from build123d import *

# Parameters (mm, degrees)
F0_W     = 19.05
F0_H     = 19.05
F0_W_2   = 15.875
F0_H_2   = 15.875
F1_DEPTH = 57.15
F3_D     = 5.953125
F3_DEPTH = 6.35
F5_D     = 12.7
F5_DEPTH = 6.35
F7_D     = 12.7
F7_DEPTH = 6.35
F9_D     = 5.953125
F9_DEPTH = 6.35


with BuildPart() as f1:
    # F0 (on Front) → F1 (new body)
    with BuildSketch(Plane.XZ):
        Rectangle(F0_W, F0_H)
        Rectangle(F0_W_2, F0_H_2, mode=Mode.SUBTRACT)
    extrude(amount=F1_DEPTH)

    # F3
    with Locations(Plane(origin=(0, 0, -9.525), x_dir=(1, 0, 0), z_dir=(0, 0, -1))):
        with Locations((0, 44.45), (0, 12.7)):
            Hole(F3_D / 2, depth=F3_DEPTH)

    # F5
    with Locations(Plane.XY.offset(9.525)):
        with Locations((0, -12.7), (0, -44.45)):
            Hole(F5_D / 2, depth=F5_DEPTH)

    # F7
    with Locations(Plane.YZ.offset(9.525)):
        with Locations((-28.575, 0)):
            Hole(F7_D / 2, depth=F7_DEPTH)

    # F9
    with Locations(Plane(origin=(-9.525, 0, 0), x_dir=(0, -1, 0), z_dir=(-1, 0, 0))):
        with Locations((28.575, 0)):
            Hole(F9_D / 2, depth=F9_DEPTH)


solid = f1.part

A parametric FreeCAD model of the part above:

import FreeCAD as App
import Part
import Sketcher
Q = App.Units.Quantity


def add_polygon(sketch, points):
    """Adds a closed chain of lines whose ends are joined by coincident constraints."""
    first, n = sketch.GeometryCount, len(points)
    for a, b in zip(points, points[1:] + points[:1]):
        sketch.addGeometry(Part.LineSegment(App.Vector(*a, 0), App.Vector(*b, 0)), False)
    for i in range(n):
        sketch.addConstraint(Sketcher.Constraint("Coincident", first + i, 2, first + (i + 1) % n, 1))

doc = App.newDocument("Part")
params = doc.addObject("Spreadsheet::Sheet", "Params")
for row, (alias, value) in enumerate([
    ("sketch1_width", "0.75 in"),
    ("sketch1_width2", "0.625 in"),
    ("pad1_length", "2.25 in"),
    ("sketch2_diameter", "0.234375 in"),
    ("hole_diameter", "0.234375 in"),
    ("hole_depth", "0.25 in"),
    ("sketch3_diameter", "0.5 in"),
    ("hole2_diameter", "0.5 in"),
    ("hole2_depth", "0.25 in"),
    ("sketch4_diameter", "0.5 in"),
    ("hole3_diameter", "0.5 in"),
    ("hole3_depth", "0.25 in"),
    ("sketch5_diameter", "0.234375 in"),
    ("hole4_diameter", "0.234375 in"),
    ("hole4_depth", "0.25 in"),
], start=1):
    params.set(f"A{row}", alias)
    params.set(f"B{row}", "=" + value)
    params.setAlias(f"B{row}", alias)

body = doc.addObject("PartDesign::Body", "Body")

sketch1 = body.newObject("Sketcher::SketchObject", "Sketch")
sketch1.AttachmentSupport = (doc.getObject("XZ_Plane"), [""])
sketch1.MapMode = "FlatFace"
add_polygon(sketch1, [(-10, 10), (-10, -10), (10, -10), (10, 10)])
add_polygon(sketch1, [(8, -8), (-8, -8), (-8, 8), (8, 8)])
sketch1.addConstraint(Sketcher.Constraint("Vertical", 0))
sketch1.addConstraint(Sketcher.Constraint("Horizontal", 1))
sketch1.addConstraint(Sketcher.Constraint("Vertical", 2))
sketch1.addConstraint(Sketcher.Constraint("Horizontal", 3))
sketch1.addConstraint(Sketcher.Constraint("Horizontal", 4))
sketch1.addConstraint(Sketcher.Constraint("Vertical", 5))
sketch1.addConstraint(Sketcher.Constraint("Horizontal", 6))
sketch1.addConstraint(Sketcher.Constraint("Vertical", 7))
sketch1.addConstraint(Sketcher.Constraint("Symmetric", 0, 2, 2, 2, -1, 1))
sketch1.addConstraint(Sketcher.Constraint("Symmetric", 4, 2, 6, 2, -1, 1))
sketch1.addConstraint(Sketcher.Constraint("Equal", 3, 0))
sketch1.addConstraint(Sketcher.Constraint("Equal", 6, 5))
sketch1.addConstraint(Sketcher.Constraint("DistanceX", 1, 1, 1, 2, Q("0.75 in")))
sketch1.addConstraint(Sketcher.Constraint("DistanceX", 4, 2, 4, 1, Q("0.625 in")))
sketch1.setExpression("Constraints[20]", "Params.sketch1_width")
sketch1.setExpression("Constraints[21]", "Params.sketch1_width2")
pad1 = body.newObject("PartDesign::Pad", "Pad")
pad1.Profile = sketch1
pad1.setExpression("Length", "Params.pad1_length")

sketch2 = body.newObject("Sketcher::SketchObject", "Sketch001")
sketch2.AttachmentSupport = (doc.getObject("XY_Plane"), [""])
sketch2.MapMode = "FlatFace"
sketch2.AttachmentOffset = App.Placement(App.Vector(0, 0, -0.375 * 25.4), App.Rotation())
sketch2.addGeometry(Part.Circle(App.Vector(0, -44.5, 0), App.Vector(0, 0, 1), 3), False)
sketch2.addGeometry(Part.Circle(App.Vector(0, -12.7, 0), App.Vector(0, 0, 1), 3), False)
sketch2.addConstraint(Sketcher.Constraint("Equal", 0, 1))
sketch2.addConstraint(Sketcher.Constraint("PointOnObject", 0, 3, -2))
sketch2.addConstraint(Sketcher.Constraint("PointOnObject", 1, 3, -2))
sketch2.addConstraint(Sketcher.Constraint("Diameter", 0, Q("0.234375 in")))
sketch2.addConstraint(Sketcher.Constraint("DistanceY", 1, 3, -1, 1, Q("0.5 in")))
sketch2.addConstraint(Sketcher.Constraint("DistanceY", 0, 3, -1, 1, Q("1.75 in")))
sketch2.setExpression("Constraints[3]", "Params.sketch2_diameter")
doc.recompute()
hole = body.newObject("PartDesign::Hole", "Hole")
hole.Profile = sketch2
hole.ThreadType = "None"
hole.setExpression("Diameter", "Params.hole_diameter")
hole.DepthType = "Dimension"
hole.setExpression("Depth", "Params.hole_depth")
hole.DrillPoint = "Flat"
hole.Reversed = True

sketch3 = body.newObject("Sketcher::SketchObject", "Sketch002")
sketch3.AttachmentSupport = (doc.getObject("XY_Plane"), [""])
sketch3.MapMode = "FlatFace"
sketch3.AttachmentOffset = App.Placement(App.Vector(0, 0, 0.375 * 25.4), App.Rotation())
sketch3.addGeometry(Part.Circle(App.Vector(0, -13, 0), App.Vector(0, 0, 1), 6), False)
sketch3.addGeometry(Part.Circle(App.Vector(0, -44, 0), App.Vector(0, 0, 1), 6), False)
sketch3.addConstraint(Sketcher.Constraint("Equal", 0, 1))
sketch3.addConstraint(Sketcher.Constraint("PointOnObject", 0, 3, -2))
sketch3.addConstraint(Sketcher.Constraint("PointOnObject", 1, 3, -2))
sketch3.addConstraint(Sketcher.Constraint("Diameter", 0, Q("0.5 in")))
sketch3.addConstraint(Sketcher.Constraint("DistanceY", 0, 3, -1, 1, Q("0.5 in")))
sketch3.addConstraint(Sketcher.Constraint("DistanceY", 1, 3, -1, 1, Q("1.75 in")))
sketch3.setExpression("Constraints[3]", "Params.sketch3_diameter")
doc.recompute()
hole2 = body.newObject("PartDesign::Hole", "Hole001")
hole2.Profile = sketch3
hole2.ThreadType = "None"
hole2.setExpression("Diameter", "Params.hole2_diameter")
hole2.DepthType = "Dimension"
hole2.setExpression("Depth", "Params.hole2_depth")
hole2.DrillPoint = "Flat"

sketch4 = body.newObject("Sketcher::SketchObject", "Sketch003")
sketch4.AttachmentSupport = (doc.getObject("YZ_Plane"), [""])
sketch4.MapMode = "FlatFace"
sketch4.AttachmentOffset = App.Placement(App.Vector(0, 0, 0.375 * 25.4), App.Rotation())
sketch4.addGeometry(Part.Circle(App.Vector(-29, 0, 0), App.Vector(0, 0, 1), 6), False)
sketch4.addConstraint(Sketcher.Constraint("PointOnObject", 0, 3, -1))
sketch4.addConstraint(Sketcher.Constraint("Diameter", 0, Q("0.5 in")))
sketch4.addConstraint(Sketcher.Constraint("DistanceX", 0, 3, -1, 1, Q("1.125 in")))
sketch4.setExpression("Constraints[1]", "Params.sketch4_diameter")
doc.recompute()
hole3 = body.newObject("PartDesign::Hole", "Hole002")
hole3.Profile = sketch4
hole3.ThreadType = "None"
hole3.setExpression("Diameter", "Params.hole3_diameter")
hole3.DepthType = "Dimension"
hole3.setExpression("Depth", "Params.hole3_depth")
hole3.DrillPoint = "Flat"

sketch5 = body.newObject("Sketcher::SketchObject", "Sketch004")
sketch5.AttachmentSupport = (doc.getObject("YZ_Plane"), [""])
sketch5.MapMode = "FlatFace"
sketch5.AttachmentOffset = App.Placement(App.Vector(0, 0, -0.375 * 25.4), App.Rotation())
sketch5.addGeometry(Part.Circle(App.Vector(-28.6, 0, 0), App.Vector(0, 0, 1), 3), False)
sketch5.addConstraint(Sketcher.Constraint("PointOnObject", 0, 3, -1))
sketch5.addConstraint(Sketcher.Constraint("Diameter", 0, Q("0.234375 in")))
sketch5.addConstraint(Sketcher.Constraint("DistanceX", 0, 3, -1, 1, Q("1.125 in")))
sketch5.setExpression("Constraints[1]", "Params.sketch5_diameter")
doc.recompute()
hole4 = body.newObject("PartDesign::Hole", "Hole003")
hole4.Profile = sketch5
hole4.ThreadType = "None"
hole4.setExpression("Diameter", "Params.hole4_diameter")
hole4.DepthType = "Dimension"
hole4.setExpression("Depth", "Params.hole4_depth")
hole4.DrillPoint = "Flat"
hole4.Reversed = True

doc.recompute()
